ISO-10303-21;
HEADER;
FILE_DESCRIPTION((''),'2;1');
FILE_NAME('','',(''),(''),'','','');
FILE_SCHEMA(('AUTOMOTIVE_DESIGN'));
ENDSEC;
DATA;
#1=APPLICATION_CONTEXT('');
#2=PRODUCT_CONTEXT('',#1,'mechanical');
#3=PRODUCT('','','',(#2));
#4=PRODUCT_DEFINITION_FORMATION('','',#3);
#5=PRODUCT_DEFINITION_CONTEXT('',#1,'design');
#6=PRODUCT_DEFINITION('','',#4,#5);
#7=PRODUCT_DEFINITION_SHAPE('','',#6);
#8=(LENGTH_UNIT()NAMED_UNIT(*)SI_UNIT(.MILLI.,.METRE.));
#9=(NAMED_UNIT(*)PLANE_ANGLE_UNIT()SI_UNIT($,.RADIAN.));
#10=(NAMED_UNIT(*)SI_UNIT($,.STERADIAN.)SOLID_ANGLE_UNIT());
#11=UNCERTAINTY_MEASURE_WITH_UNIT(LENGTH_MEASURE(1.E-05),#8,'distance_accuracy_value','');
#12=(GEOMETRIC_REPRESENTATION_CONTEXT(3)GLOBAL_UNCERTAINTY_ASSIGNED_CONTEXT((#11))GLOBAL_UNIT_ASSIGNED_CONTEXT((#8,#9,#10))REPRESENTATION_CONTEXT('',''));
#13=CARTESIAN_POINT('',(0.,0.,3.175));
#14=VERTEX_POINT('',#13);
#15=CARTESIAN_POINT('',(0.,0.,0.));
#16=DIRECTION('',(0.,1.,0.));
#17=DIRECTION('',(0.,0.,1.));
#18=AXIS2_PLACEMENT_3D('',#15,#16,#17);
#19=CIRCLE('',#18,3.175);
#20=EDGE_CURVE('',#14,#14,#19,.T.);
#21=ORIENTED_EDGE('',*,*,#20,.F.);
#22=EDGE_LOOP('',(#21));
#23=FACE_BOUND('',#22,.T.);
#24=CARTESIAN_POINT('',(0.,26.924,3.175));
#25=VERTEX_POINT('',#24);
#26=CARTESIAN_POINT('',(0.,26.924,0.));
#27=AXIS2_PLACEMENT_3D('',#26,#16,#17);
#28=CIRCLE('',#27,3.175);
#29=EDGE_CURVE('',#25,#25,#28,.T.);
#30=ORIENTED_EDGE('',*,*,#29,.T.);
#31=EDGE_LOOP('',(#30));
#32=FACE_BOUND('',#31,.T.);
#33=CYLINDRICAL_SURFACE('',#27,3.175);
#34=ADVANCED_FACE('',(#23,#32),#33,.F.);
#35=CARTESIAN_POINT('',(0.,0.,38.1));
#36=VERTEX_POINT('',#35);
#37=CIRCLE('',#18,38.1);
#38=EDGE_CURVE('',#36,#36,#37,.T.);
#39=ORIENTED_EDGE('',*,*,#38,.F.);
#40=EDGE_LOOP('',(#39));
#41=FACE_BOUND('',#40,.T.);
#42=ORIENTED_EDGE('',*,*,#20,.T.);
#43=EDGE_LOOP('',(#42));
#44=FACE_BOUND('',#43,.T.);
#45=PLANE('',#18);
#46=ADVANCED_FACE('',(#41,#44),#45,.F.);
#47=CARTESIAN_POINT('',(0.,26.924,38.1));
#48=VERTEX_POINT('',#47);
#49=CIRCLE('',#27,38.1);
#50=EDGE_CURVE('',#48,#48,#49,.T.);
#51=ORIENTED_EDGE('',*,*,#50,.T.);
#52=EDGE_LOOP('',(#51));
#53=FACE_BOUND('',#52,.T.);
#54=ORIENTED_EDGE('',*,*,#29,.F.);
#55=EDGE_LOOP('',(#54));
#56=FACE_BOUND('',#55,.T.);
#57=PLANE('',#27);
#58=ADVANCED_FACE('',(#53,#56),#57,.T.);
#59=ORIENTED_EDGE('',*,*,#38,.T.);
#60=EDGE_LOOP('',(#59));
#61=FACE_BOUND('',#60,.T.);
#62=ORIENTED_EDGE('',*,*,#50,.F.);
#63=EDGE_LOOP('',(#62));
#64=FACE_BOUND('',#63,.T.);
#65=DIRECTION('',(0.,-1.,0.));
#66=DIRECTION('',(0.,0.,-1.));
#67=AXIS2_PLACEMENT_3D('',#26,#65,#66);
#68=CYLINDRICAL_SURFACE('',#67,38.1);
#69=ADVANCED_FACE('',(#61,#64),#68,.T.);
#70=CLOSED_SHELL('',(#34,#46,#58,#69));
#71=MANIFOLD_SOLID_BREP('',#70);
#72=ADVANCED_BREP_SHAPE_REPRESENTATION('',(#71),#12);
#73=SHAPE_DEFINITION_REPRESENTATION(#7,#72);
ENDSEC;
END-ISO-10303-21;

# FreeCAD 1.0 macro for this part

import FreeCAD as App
import Part
import Sketcher

V = App.Vector
Q = App.Units.Quantity

doc = App.newDocument("Part")
body = doc.addObject("PartDesign::Body", "Body")

sketch1 = body.newObject("Sketcher::SketchObject", "Sketch")
sketch1.AttachmentSupport = (doc.getObject("XZ_Plane"), [""])
sketch1.MapMode = "FlatFace"
sketch1.addGeometry(Part.Circle(V(0, 0, 0), V(0, 0, 1), 38.1), False)
sketch1.addConstraint([
    Sketcher.Constraint("Coincident", 0, 3, -1, 1),
    Sketcher.Constraint("Diameter", 0, Q("3 in")),
])
pad1 = body.newObject("PartDesign::Pad", "Pad")
pad1.Profile = sketch1
pad1.Length = Q("1.06 in")
pad1.Reversed = True

sketch2 = body.newObject("Sketcher::SketchObject", "Sketch001")
sketch2.AttachmentSupport = (doc.getObject("XZ_Plane"), [""])
sketch2.MapMode = "FlatFace"
sketch2.AttachmentOffset = App.Placement(V(0, 0, -1.06 * 25.4), App.Rotation())
sketch2.addGeometry(Part.Circle(V(0, 0, 0), V(0, 0, 1), 3.175), False)
sketch2.addConstraint([
    Sketcher.Constraint("Coincident", 0, 3, -1, 1),
    Sketcher.Constraint("Diameter", 0, Q("0.25 in")),
])
doc.recompute()
hole = body.newObject("PartDesign::Hole", "Hole")
hole.Profile = sketch2
hole.ThreadType = "None"
hole.Diameter = Q("0.25 in")
hole.DepthType = "ThroughAll"
hole.Reversed = True

doc.recompute()
